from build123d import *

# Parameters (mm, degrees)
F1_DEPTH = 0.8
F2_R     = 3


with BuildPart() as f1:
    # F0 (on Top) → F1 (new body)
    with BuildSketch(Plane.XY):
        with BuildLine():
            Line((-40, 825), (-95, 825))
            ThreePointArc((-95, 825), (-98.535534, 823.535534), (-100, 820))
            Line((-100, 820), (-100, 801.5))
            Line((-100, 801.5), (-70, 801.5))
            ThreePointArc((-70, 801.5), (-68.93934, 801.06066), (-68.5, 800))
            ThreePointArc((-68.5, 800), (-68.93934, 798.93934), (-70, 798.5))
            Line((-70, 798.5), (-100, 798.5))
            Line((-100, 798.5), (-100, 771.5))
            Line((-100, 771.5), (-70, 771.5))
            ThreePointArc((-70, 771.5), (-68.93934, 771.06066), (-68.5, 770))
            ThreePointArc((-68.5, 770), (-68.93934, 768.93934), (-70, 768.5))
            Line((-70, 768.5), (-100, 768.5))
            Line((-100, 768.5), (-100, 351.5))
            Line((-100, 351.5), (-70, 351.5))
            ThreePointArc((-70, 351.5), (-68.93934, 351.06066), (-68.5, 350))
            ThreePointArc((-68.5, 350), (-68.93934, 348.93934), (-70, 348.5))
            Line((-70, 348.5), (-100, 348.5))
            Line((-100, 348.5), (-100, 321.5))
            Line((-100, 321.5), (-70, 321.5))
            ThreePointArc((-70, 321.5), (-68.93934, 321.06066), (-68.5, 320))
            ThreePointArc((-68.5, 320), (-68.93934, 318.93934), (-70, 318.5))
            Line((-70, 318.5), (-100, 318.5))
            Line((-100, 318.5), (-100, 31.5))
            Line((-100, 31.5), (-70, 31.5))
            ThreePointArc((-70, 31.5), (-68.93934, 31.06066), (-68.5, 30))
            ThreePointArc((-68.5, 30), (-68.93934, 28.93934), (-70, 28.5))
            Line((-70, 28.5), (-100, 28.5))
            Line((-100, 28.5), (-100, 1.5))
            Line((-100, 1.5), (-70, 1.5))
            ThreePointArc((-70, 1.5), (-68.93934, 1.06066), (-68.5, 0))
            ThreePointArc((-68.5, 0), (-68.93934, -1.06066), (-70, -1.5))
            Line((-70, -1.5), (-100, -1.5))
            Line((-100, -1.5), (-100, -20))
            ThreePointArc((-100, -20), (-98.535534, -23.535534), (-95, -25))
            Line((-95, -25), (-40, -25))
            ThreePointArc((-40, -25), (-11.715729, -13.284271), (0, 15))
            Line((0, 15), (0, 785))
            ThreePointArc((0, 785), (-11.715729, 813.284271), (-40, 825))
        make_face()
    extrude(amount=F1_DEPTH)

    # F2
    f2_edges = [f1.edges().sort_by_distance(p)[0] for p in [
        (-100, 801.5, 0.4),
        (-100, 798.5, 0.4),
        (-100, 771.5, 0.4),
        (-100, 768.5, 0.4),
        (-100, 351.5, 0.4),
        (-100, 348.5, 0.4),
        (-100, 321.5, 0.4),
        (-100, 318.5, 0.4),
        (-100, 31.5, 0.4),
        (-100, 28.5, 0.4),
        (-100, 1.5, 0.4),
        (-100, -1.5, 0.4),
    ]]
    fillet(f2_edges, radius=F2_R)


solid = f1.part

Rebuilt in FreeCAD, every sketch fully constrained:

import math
import FreeCAD as App
import Part
import Sketcher
Q = App.Units.Quantity


def edges_at(feature, points):
    """Names of the edges that pass closest to the given points."""
    edges = feature.Shape.Edges
    near = lambda p: min(range(len(edges)), key=lambda i: edges[i].distToShape(Part.Vertex(*p))[0])
    return sorted({f"Edge{near(p) + 1}" for p in points})

doc = App.newDocument("Part")
body = doc.addObject("PartDesign::Body", "Body")

sketch1 = doc.addObject("Sketcher::SketchObject", "Sketch")
body.addObject(sketch1)
sketch1.AttachmentSupport = (doc.XY_Plane, [""])
sketch1.MapMode = "FlatFace"
sketch1.addGeometry(Part.LineSegment(App.Vector(-40, 825, 0), App.Vector(-95, 825, 0)), False)
sketch1.addGeometry(Part.ArcOfCircle(Part.Circle(App.Vector(-95, 820, 0), App.Vector(0, 0, 1), 5), math.radians(90), math.radians(180)), False)
sketch1.addGeometry(Part.LineSegment(App.Vector(-100, 820, 0), App.Vector(-100, 801.5, 0)), False)
sketch1.addGeometry(Part.LineSegment(App.Vector(-100, 801.5, 0), App.Vector(-70, 801.5, 0)), False)
sketch1.addGeometry(Part.ArcOfCircle(Part.Circle(App.Vector(-70, 800, 0), App.Vector(0, 0, 1), 1.5), math.radians(0), math.radians(90)), False)
sketch1.addGeometry(Part.ArcOfCircle(Part.Circle(App.Vector(-70, 800, 0), App.Vector(0, 0, 1), 1.5), math.radians(-90), math.radians(0)), False)
sketch1.addGeometry(Part.LineSegment(App.Vector(-70, 798.5, 0), App.Vector(-100, 798.5, 0)), False)
sketch1.addGeometry(Part.LineSegment(App.Vector(-100, 798.5, 0), App.Vector(-100, 771.5, 0)), False)
sketch1.addGeometry(Part.LineSegment(App.Vector(-100, 771.5, 0), App.Vector(-70, 771.5, 0)), False)
sketch1.addGeometry(Part.ArcOfCircle(Part.Circle(App.Vector(-70, 770, 0), App.Vector(0, 0, 1), 1.5), math.radians(0), math.radians(90)), False)
sketch1.addGeometry(Part.ArcOfCircle(Part.Circle(App.Vector(-70, 770, 0), App.Vector(0, 0, 1), 1.5), math.radians(-90), math.radians(0)), False)
sketch1.addGeometry(Part.LineSegment(App.Vector(-70, 768.5, 0), App.Vector(-100, 768.5, 0)), False)
sketch1.addGeometry(Part.LineSegment(App.Vector(-100, 768.5, 0), App.Vector(-100, 351.5, 0)), False)
sketch1.addGeometry(Part.LineSegment(App.Vector(-100, 351.5, 0), App.Vector(-70, 351.5, 0)), False)
sketch1.addGeometry(Part.ArcOfCircle(Part.Circle(App.Vector(-70, 350, 0), App.Vector(0, 0, 1), 1.5), math.radians(0), math.radians(90)), False)
sketch1.addGeometry(Part.ArcOfCircle(Part.Circle(App.Vector(-70, 350, 0), App.Vector(0, 0, 1), 1.5), math.radians(-90), math.radians(0)), False)
sketch1.addGeometry(Part.LineSegment(App.Vector(-70, 348.5, 0), App.Vector(-100, 348.5, 0)), False)
sketch1.addGeometry(Part.LineSegment(App.Vector(-100, 348.5, 0), App.Vector(-100, 321.5, 0)), False)
sketch1.addGeometry(Part.LineSegment(App.Vector(-100, 321.5, 0), App.Vector(-70, 321.5, 0)), False)
sketch1.addGeometry(Part.ArcOfCircle(Part.Circle(App.Vector(-70, 320, 0), App.Vector(0, 0, 1), 1.5), math.radians(0), math.radians(90)), False)
sketch1.addGeometry(Part.ArcOfCircle(Part.Circle(App.Vector(-70, 320, 0), App.Vector(0, 0, 1), 1.5), math.radians(-90), math.radians(0)), False)
sketch1.addGeometry(Part.LineSegment(App.Vector(-70, 318.5, 0), App.Vector(-100, 318.5, 0)), False)
sketch1.addGeometry(Part.LineSegment(App.Vector(-100, 318.5, 0), App.Vector(-100, 31.5, 0)), False)
sketch1.addGeometry(Part.LineSegment(App.Vector(-100, 31.5, 0), App.Vector(-70, 31.5, 0)), False)
sketch1.addGeometry(Part.ArcOfCircle(Part.Circle(App.Vector(-70, 30, 0), App.Vector(0, 0, 1), 1.5), math.radians(0), math.radians(90)), False)
sketch1.addGeometry(Part.ArcOfCircle(Part.Circle(App.Vector(-70, 30, 0), App.Vector(0, 0, 1), 1.5), math.radians(-90), math.radians(0)), False)
sketch1.addGeometry(Part.LineSegment(App.Vector(-70, 28.5, 0), App.Vector(-100, 28.5, 0)), False)
sketch1.addGeometry(Part.LineSegment(App.Vector(-100, 28.5, 0), App.Vector(-100, 1.5, 0)), False)
sketch1.addGeometry(Part.LineSegment(App.Vector(-100, 1.5, 0), App.Vector(-70, 1.5, 0)), False)
sketch1.addGeometry(Part.ArcOfCircle(Part.Circle(App.Vector(-70, 0, 0), App.Vector(0, 0, 1), 1.5), math.radians(0), math.radians(90)), False)
sketch1.addGeometry(Part.ArcOfCircle(Part.Circle(App.Vector(-70, 0, 0), App.Vector(0, 0, 1), 1.5), math.radians(-90), math.radians(0)), False)
sketch1.addGeometry(Part.LineSegment(App.Vector(-70, -1.5, 0), App.Vector(-100, -1.5, 0)), False)
sketch1.addGeometry(Part.LineSegment(App.Vector(-100, -1.5, 0), App.Vector(-100, -20, 0)), False)
sketch1.addGeometry(Part.ArcOfCircle(Part.Circle(App.Vector(-95, -20, 0), App.Vector(0, 0, 1), 5), math.radians(180), math.radians(270)), False)
sketch1.addGeometry(Part.LineSegment(App.Vector(-95, -25, 0), App.Vector(-40, -25, 0)), False)
sketch1.addGeometry(Part.ArcOfCircle(Part.Circle(App.Vector(-40, 15, 0), App.Vector(0, 0, 1), 40), math.radians(-90), math.radians(0)), False)
sketch1.addGeometry(Part.LineSegment(App.Vector(0, 15, 0), App.Vector(0, 785, 0)), False)
sketch1.addGeometry(Part.ArcOfCircle(Part.Circle(App.Vector(-40, 785, 0), App.Vector(0, 0, 1), 40), math.radians(0), math.radians(90)), False)
sketch1.addConstraint(Sketcher.Constraint("Tangent", 0, 2, 1, 1))
sketch1.addConstraint(Sketcher.Constraint("Tangent", 1, 2, 2, 1))
sketch1.addConstraint(Sketcher.Constraint("Coincident", 2, 2, 3, 1))
sketch1.addConstraint(Sketcher.Constraint("Tangent", 3, 2, 4, 2))
sketch1.addConstraint(Sketcher.Constraint("Tangent", 4, 1, 5, 2))
sketch1.addConstraint(Sketcher.Constraint("Tangent", 5, 1, 6, 1))
sketch1.addConstraint(Sketcher.Constraint("Coincident", 6, 2, 7, 1))
sketch1.addConstraint(Sketcher.Constraint("Coincident", 7, 2, 8, 1))
sketch1.addConstraint(Sketcher.Constraint("Tangent", 8, 2, 9, 2))
sketch1.addConstraint(Sketcher.Constraint("Tangent", 9, 1, 10, 2))
sketch1.addConstraint(Sketcher.Constraint("Tangent", 10, 1, 11, 1))
sketch1.addConstraint(Sketcher.Constraint("Coincident", 11, 2, 12, 1))
sketch1.addConstraint(Sketcher.Constraint("Coincident", 12, 2, 13, 1))
sketch1.addConstraint(Sketcher.Constraint("Tangent", 13, 2, 14, 2))
sketch1.addConstraint(Sketcher.Constraint("Tangent", 14, 1, 15, 2))
sketch1.addConstraint(Sketcher.Constraint("Tangent", 15, 1, 16, 1))
sketch1.addConstraint(Sketcher.Constraint("Coincident", 16, 2, 17, 1))
sketch1.addConstraint(Sketcher.Constraint("Coincident", 17, 2, 18, 1))
sketch1.addConstraint(Sketcher.Constraint("Tangent", 18, 2, 19, 2))
sketch1.addConstraint(Sketcher.Constraint("Tangent", 19, 1, 20, 2))
sketch1.addConstraint(Sketcher.Constraint("Tangent", 20, 1, 21, 1))
sketch1.addConstraint(Sketcher.Constraint("Coincident", 21, 2, 22, 1))
sketch1.addConstraint(Sketcher.Constraint("Coincident", 22, 2, 23, 1))
sketch1.addConstraint(Sketcher.Constraint("Tangent", 23, 2, 24, 2))
sketch1.addConstraint(Sketcher.Constraint("Tangent", 24, 1, 25, 2))
sketch1.addConstraint(Sketcher.Constraint("Tangent", 25, 1, 26, 1))
sketch1.addConstraint(Sketcher.Constraint("Coincident", 26, 2, 27, 1))
sketch1.addConstraint(Sketcher.Constraint("Coincident", 27, 2, 28, 1))
sketch1.addConstraint(Sketcher.Constraint("Tangent", 28, 2, 29, 2))
sketch1.addConstraint(Sketcher.Constraint("Tangent", 29, 1, 30, 2))
sketch1.addConstraint(Sketcher.Constraint("Tangent", 30, 1, 31, 1))
sketch1.addConstraint(Sketcher.Constraint("Coincident", 31, 2, 32, 1))
sketch1.addConstraint(Sketcher.Constraint("Tangent", 32, 2, 33, 1))
sketch1.addConstraint(Sketcher.Constraint("Tangent", 33, 2, 34, 1))
sketch1.addConstraint(Sketcher.Constraint("Tangent", 34, 2, 35, 1))
sketch1.addConstraint(Sketcher.Constraint("Tangent", 35, 2, 36, 1))
sketch1.addConstraint(Sketcher.Constraint("Tangent", 36, 2, 37, 1))
sketch1.addConstraint(Sketcher.Constraint("Tangent", 37, 2, 0, 1))
sketch1.addConstraint(Sketcher.Constraint("Horizontal", 0))
sketch1.addConstraint(Sketcher.Constraint("Vertical", 2))
sketch1.addConstraint(Sketcher.Constraint("Horizontal", 3))
sketch1.addConstraint(Sketcher.Constraint("Horizontal", 6))
sketch1.addConstraint(Sketcher.Constraint("Vertical", 7))
sketch1.addConstraint(Sketcher.Constraint("Horizontal", 8))
sketch1.addConstraint(Sketcher.Constraint("Horizontal", 11))
sketch1.addConstraint(Sketcher.Constraint("Vertical", 12))
sketch1.addConstraint(Sketcher.Constraint("Horizontal", 13))
sketch1.addConstraint(Sketcher.Constraint("Horizontal", 16))
sketch1.addConstraint(Sketcher.Constraint("Vertical", 17))
sketch1.addConstraint(Sketcher.Constraint("Horizontal", 18))
sketch1.addConstraint(Sketcher.Constraint("Horizontal", 21))
sketch1.addConstraint(Sketcher.Constraint("Vertical", 22))
sketch1.addConstraint(Sketcher.Constraint("Horizontal", 23))
sketch1.addConstraint(Sketcher.Constraint("Horizontal", 26))
sketch1.addConstraint(Sketcher.Constraint("Vertical", 27))
sketch1.addConstraint(Sketcher.Constraint("Horizontal", 28))
sketch1.addConstraint(Sketcher.Constraint("Horizontal", 31))
sketch1.addConstraint(Sketcher.Constraint("Vertical", 32))
sketch1.addConstraint(Sketcher.Constraint("Horizontal", 34))
sketch1.addConstraint(Sketcher.Constraint("Vertical", 36))
sketch1.addConstraint(Sketcher.Constraint("Equal", 4, 5))
sketch1.addConstraint(Sketcher.Constraint("Equal", 5, 9))
sketch1.addConstraint(Sketcher.Constraint("Equal", 9, 10))
sketch1.addConstraint(Sketcher.Constraint("Equal", 10, 14))
sketch1.addConstraint(Sketcher.Constraint("Equal", 14, 15))
sketch1.addConstraint(Sketcher.Constraint("Equal", 15, 19))
sketch1.addConstraint(Sketcher.Constraint("Equal", 19, 20))
sketch1.addConstraint(Sketcher.Constraint("Equal", 20, 24))
sketch1.addConstraint(Sketcher.Constraint("Equal", 24, 25))
sketch1.addConstraint(Sketcher.Constraint("Equal", 25, 29))
sketch1.addConstraint(Sketcher.Constraint("Equal", 29, 30))
sketch1.addConstraint(Sketcher.Constraint("Equal", 1, 33))
sketch1.addConstraint(Sketcher.Constraint("Equal", 35, 37))
sketch1.addConstraint(Sketcher.Constraint("Symmetric", 27, 2, 31, 2, -1))
sketch1.addConstraint(Sketcher.Constraint("PointOnObject", 29, 1, -1))
sketch1.addConstraint(Sketcher.Constraint("PointOnObject", 35, 2, -2))
sketch1.addConstraint(Sketcher.Constraint("Horizontal", 5, 3, 4, 1))
sketch1.addConstraint(Sketcher.Constraint("Horizontal", 10, 3, 9, 1))
sketch1.addConstraint(Sketcher.Constraint("Horizontal", 15, 3, 14, 1))
sketch1.addConstraint(Sketcher.Constraint("Horizontal", 20, 3, 19, 1))
sketch1.addConstraint(Sketcher.Constraint("Horizontal", 25, 3, 24, 1))
sketch1.addConstraint(Sketcher.Constraint("Vertical", 5, 3, 9, 3))
sketch1.addConstraint(Sketcher.Constraint("Vertical", 10, 3, 14, 3))
sketch1.addConstraint(Sketcher.Constraint("Vertical", 15, 3, 19, 3))
sketch1.addConstraint(Sketcher.Constraint("Vertical", 20, 3, 24, 3))
sketch1.addConstraint(Sketcher.Constraint("Vertical", 25, 3, 29, 3))
sketch1.addConstraint(Sketcher.Constraint("Vertical", 1, 3, 33, 3))
sketch1.addConstraint(Sketcher.Constraint("Vertical", 2, 2, 6, 2))
sketch1.addConstraint(Sketcher.Constraint("Vertical", 7, 2, 11, 2))
sketch1.addConstraint(Sketcher.Constraint("Vertical", 12, 2, 16, 2))
sketch1.addConstraint(Sketcher.Constraint("Vertical", 17, 2, 21, 2))
sketch1.addConstraint(Sketcher.Constraint("Equal", 7, 17))
sketch1.addConstraint(Sketcher.Constraint("Equal", 17, 27))
sketch1.addConstraint(Sketcher.Constraint("Equal", 2, 32))
sketch1.addConstraint(Sketcher.Constraint("Radius", 1, Q("5 mm")))
sketch1.addConstraint(Sketcher.Constraint("Radius", 35, Q("40.000001 mm")))
sketch1.addConstraint(Sketcher.Constraint("Radius", 4, Q("1.500001 mm")))
sketch1.addConstraint(Sketcher.Constraint("DistanceX", 0, 2, 0, 1, Q("55 mm")))
sketch1.addConstraint(Sketcher.Constraint("DistanceX", 3, 1, 3, 2, Q("30 mm")))
sketch1.addConstraint(Sketcher.Constraint("DistanceY", 7, 2, 7, 1, Q("27 mm")))
sketch1.addConstraint(Sketcher.Constraint("DistanceY", 12, 2, 12, 1, Q("417 mm")))
sketch1.addConstraint(Sketcher.Constraint("DistanceY", 22, 2, 22, 1, Q("287 mm")))
sketch1.addConstraint(Sketcher.Constraint("DistanceY", 36, 1, 36, 2, Q("770 mm")))
pad1 = doc.addObject("PartDesign::Pad", "Pad")
body.addObject(pad1)
pad1.Profile = sketch1
pad1.Length = 0.8
doc.recompute()

fillet = doc.addObject("PartDesign::Fillet", "Fillet")
body.addObject(fillet)
fillet.Base = (pad1, edges_at(pad1, [
    (-100, 801.5, 0.4),
    (-100, 798.5, 0.4),
    (-100, 771.5, 0.4),
    (-100, 768.5, 0.4),
    (-100, 351.5, 0.4),
    (-100, 348.5, 0.4),
    (-100, 321.5, 0.4),
    (-100, 318.5, 0.4),
    (-100, 31.5, 0.4),
    (-100, 28.5, 0.4),
    (-100, 1.5, 0.4),
    (-100, -1.5, 0.4),
]))
fillet.Radius = 3

doc.recompute()
